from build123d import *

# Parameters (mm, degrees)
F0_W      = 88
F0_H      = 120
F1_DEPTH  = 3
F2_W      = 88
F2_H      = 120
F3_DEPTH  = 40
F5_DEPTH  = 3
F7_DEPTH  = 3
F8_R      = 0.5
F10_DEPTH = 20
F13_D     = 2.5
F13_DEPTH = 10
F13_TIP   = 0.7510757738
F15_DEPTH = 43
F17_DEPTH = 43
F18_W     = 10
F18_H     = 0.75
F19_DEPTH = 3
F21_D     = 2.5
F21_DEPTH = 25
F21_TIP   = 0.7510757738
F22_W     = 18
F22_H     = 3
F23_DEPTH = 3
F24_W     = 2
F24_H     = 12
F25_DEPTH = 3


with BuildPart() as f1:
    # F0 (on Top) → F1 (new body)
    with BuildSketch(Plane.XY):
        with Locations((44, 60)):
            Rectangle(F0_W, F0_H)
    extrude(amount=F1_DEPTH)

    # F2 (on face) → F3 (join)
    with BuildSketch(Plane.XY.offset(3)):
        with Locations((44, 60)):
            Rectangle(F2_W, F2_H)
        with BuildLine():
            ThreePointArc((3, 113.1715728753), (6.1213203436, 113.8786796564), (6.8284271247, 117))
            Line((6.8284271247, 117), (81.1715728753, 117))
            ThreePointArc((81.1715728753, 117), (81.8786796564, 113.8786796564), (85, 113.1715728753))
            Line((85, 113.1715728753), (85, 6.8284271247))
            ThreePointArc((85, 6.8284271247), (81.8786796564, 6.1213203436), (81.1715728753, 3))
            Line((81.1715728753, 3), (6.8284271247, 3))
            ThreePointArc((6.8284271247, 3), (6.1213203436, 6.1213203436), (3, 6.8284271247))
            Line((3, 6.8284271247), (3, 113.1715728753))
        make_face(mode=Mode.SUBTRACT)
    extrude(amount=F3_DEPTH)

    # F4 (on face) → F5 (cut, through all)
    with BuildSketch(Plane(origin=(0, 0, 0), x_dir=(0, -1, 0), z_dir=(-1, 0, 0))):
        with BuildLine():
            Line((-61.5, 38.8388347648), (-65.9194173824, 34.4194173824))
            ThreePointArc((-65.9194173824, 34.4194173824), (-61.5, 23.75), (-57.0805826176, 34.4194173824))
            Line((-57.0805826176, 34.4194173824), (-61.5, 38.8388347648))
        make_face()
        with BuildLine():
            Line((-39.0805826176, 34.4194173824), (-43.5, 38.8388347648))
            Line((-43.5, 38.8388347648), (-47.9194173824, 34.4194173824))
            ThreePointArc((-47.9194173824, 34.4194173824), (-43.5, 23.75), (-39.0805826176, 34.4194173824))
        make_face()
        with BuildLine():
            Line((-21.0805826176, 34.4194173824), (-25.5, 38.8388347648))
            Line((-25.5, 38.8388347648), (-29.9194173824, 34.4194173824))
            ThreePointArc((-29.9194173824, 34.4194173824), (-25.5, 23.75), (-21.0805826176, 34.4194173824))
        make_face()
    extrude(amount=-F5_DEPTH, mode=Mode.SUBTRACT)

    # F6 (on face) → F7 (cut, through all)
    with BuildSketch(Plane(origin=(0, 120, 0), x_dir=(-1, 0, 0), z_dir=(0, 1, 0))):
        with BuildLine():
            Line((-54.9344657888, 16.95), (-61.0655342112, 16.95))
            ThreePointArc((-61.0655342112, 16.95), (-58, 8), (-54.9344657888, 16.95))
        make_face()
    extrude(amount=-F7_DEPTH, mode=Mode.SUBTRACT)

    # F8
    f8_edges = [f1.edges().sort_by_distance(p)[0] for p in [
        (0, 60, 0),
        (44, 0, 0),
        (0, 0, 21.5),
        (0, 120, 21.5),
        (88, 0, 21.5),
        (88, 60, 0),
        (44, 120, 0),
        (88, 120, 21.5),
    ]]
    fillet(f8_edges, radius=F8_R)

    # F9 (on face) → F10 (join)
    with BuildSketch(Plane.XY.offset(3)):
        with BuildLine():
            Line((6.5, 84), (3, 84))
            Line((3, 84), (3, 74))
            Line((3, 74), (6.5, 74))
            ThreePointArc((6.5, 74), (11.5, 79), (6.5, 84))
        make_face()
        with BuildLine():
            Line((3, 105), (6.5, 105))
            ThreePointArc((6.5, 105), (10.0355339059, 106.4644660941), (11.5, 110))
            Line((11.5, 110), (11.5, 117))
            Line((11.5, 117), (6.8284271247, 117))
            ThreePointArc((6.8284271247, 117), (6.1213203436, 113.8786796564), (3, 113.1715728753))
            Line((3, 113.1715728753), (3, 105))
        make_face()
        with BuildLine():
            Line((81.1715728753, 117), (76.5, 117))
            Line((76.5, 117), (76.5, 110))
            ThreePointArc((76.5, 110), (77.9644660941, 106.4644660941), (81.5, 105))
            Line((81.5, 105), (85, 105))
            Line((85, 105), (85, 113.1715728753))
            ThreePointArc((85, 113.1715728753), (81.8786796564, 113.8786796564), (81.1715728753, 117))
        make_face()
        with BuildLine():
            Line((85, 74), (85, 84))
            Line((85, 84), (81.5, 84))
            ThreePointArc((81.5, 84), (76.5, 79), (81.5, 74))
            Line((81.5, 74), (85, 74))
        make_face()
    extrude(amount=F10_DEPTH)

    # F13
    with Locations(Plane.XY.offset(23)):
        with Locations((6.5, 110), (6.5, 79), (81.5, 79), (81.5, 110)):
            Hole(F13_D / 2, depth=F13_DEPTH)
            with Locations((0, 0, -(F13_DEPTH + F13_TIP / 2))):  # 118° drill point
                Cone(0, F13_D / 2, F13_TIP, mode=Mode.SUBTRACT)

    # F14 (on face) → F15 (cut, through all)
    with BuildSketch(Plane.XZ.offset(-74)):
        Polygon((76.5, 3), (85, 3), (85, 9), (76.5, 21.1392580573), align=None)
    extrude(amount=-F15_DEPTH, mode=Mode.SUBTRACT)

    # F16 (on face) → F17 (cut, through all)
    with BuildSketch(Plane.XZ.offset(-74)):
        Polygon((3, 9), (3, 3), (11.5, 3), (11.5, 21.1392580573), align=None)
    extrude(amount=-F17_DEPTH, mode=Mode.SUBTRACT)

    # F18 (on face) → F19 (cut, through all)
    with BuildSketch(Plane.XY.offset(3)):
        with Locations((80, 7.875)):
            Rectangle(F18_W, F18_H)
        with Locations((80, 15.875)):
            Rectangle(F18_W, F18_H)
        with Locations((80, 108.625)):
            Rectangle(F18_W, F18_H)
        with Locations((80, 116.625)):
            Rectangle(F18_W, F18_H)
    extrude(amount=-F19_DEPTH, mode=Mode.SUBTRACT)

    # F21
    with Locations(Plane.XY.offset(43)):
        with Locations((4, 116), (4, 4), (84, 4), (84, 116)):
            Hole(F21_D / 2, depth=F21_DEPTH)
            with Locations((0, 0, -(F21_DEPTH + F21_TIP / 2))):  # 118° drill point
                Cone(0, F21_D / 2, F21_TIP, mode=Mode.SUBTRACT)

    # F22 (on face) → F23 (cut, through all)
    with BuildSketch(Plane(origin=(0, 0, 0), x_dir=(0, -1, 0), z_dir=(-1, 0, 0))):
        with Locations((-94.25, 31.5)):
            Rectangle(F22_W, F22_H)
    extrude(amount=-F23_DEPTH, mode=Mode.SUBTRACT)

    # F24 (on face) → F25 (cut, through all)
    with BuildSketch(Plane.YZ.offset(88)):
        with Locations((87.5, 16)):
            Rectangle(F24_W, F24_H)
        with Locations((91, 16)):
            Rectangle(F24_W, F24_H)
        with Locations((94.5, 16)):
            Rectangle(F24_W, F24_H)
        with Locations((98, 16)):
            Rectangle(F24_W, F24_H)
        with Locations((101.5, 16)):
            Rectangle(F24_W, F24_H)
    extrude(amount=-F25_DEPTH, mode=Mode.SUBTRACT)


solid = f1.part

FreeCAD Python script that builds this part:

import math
import FreeCAD as App
import Part
import Sketcher
from FreeCAD import Vector
Q = App.Units.Quantity


def edges_at(feature, points):
    """Names of the edges that pass closest to the given points."""
    edges = feature.Shape.Edges
    near = lambda p: min(range(len(edges)), key=lambda i: edges[i].distToShape(Part.Vertex(*p))[0])
    return sorted({f"Edge{near(p) + 1}" for p in points})

doc = App.newDocument("Part")
body = doc.addObject("PartDesign::Body", "Body")

# Sketch on XY plane
sketch1 = body.newObject("Sketcher::SketchObject", "Sketch")
sketch1.AttachmentSupport = (doc.getObject("XY_Plane"), [""])
sketch1.MapMode = "FlatFace"
sketch1.addGeometry([
    Part.LineSegment(Vector(0, 120, 0), Vector(0, 0, 0)),
    Part.LineSegment(Vector(0, 0, 0), Vector(88, 0, 0)),
    Part.LineSegment(Vector(88, 0, 0), Vector(88, 120, 0)),
    Part.LineSegment(Vector(88, 120, 0), Vector(0, 120, 0)),
], False)
sketch1.addConstraint([
    Sketcher.Constraint("Coincident", 0, 2, 1, 1),
    Sketcher.Constraint("Coincident", 1, 2, 2, 1),
    Sketcher.Constraint("Coincident", 2, 2, 3, 1),
    Sketcher.Constraint("Coincident", 3, 2, 0, 1),
    Sketcher.Constraint("Vertical", 0),
    Sketcher.Constraint("Horizontal", 1),
    Sketcher.Constraint("Vertical", 2),
    Sketcher.Constraint("Horizontal", 3),
    Sketcher.Constraint("Coincident", 0, 2, -1, 1),
    Sketcher.Constraint("DistanceX", 1, 1, 1, 2, 88.0),
    Sketcher.Constraint("DistanceY", 0, 2, 0, 1, 120.0),
])
pad1 = body.newObject("PartDesign::Pad", "Pad")
pad1.Profile = sketch1
pad1.Length = 3

# Sketch on XY plane
sketch2 = body.newObject("Sketcher::SketchObject", "Sketch001")
sketch2.AttachmentSupport = (doc.getObject("XY_Plane"), [""])
sketch2.MapMode = "FlatFace"
sketch2.AttachmentOffset = App.Placement(Vector(0, 0, 3), App.Rotation())
sketch2.addGeometry([
    Part.LineSegment(Vector(0, 120, 0), Vector(0, 0, 0)),  # 0
    Part.LineSegment(Vector(0, 0, 0), Vector(88, 0, 0)),  # 1
    Part.LineSegment(Vector(88, 0, 0), Vector(88, 120, 0)),  # 2
    Part.LineSegment(Vector(88, 120, 0), Vector(0, 120, 0)),  # 3
    Part.LineSegment(Vector(3, 6.8, 0), Vector(3, 113.2, 0)),  # 4
    Part.ArcOfCircle(Part.Circle(Vector(4, 116, 0), Vector(0, 0, 1), 3), math.radians(-109), math.radians(19)),  # 5
    Part.LineSegment(Vector(6.8, 117, 0), Vector(81.2, 117, 0)),  # 6
    Part.ArcOfCircle(Part.Circle(Vector(84, 116, 0), Vector(0, 0, 1), 3), math.radians(161), math.radians(289)),  # 7
    Part.LineSegment(Vector(85, 113.2, 0), Vector(85, 6.8, 0)),  # 8
    Part.ArcOfCircle(Part.Circle(Vector(84, 4, 0), Vector(0, 0, 1), 3), math.radians(71), math.radians(199)),  # 9
    Part.LineSegment(Vector(81.2, 3, 0), Vector(6.8, 3, 0)),  # 10
    Part.ArcOfCircle(Part.Circle(Vector(4, 4, 0), Vector(0, 0, 1), 3), math.radians(-19), math.radians(109)),  # 11
], False)
sketch2.addConstraint([
    Sketcher.Constraint("Coincident", 0, 2, 1, 1),
    Sketcher.Constraint("Coincident", 1, 2, 2, 1),
    Sketcher.Constraint("Coincident", 2, 2, 3, 1),
    Sketcher.Constraint("Coincident", 3, 2, 0, 1),
    Sketcher.Constraint("Coincident", 4, 2, 5, 1),
    Sketcher.Constraint("Coincident", 5, 2, 6, 1),
    Sketcher.Constraint("Coincident", 6, 2, 7, 1),
    Sketcher.Constraint("Coincident", 7, 2, 8, 1),
    Sketcher.Constraint("Coincident", 8, 2, 9, 1),
    Sketcher.Constraint("Coincident", 9, 2, 10, 1),
    Sketcher.Constraint("Coincident", 10, 2, 11, 1),
    Sketcher.Constraint("Coincident", 11, 2, 4, 1),
    Sketcher.Constraint("Vertical", 0),
    Sketcher.Constraint("Horizontal", 1),
    Sketcher.Constraint("Vertical", 2),
    Sketcher.Constraint("Horizontal", 3),
    Sketcher.Constraint("Vertical", 4),
    Sketcher.Constraint("Horizontal", 6),
    Sketcher.Constraint("Vertical", 8),
    Sketcher.Constraint("Horizontal", 10),
    Sketcher.Constraint("Coincident", 0, 2, -1, 1),
    Sketcher.Constraint("Equal", 5, 7),
    Sketcher.Constraint("Equal", 7, 9),
    Sketcher.Constraint("Equal", 9, 11),
    Sketcher.Constraint("Horizontal", 5, 3, 7, 3),
    Sketcher.Constraint("Horizontal", 9, 3, 11, 3),
    Sketcher.Constraint("Horizontal", 4, 2, 7, 2),
    Sketcher.Constraint("Horizontal", 8, 2, 11, 2),
    Sketcher.Constraint("Vertical", 7, 3, 9, 3),
    Sketcher.Constraint("Vertical", 6, 2, 9, 2),
    Sketcher.Constraint("Radius", 5, 3.0),
    Sketcher.Constraint("DistanceX", 1, 1, 1, 2, 88.0),
    Sketcher.Constraint("DistanceY", 0, 2, 0, 1, 120.0),
    Sketcher.Constraint("DistanceX", -1, 1, 5, 3, 4.0),
    Sketcher.Constraint("DistanceY", -1, 1, 5, 3, 116.0),
    Sketcher.Constraint("DistanceX", -1, 1, 7, 3, 84.0),
    Sketcher.Constraint("DistanceY", -1, 1, 9, 3, 4.0),
    Sketcher.Constraint("DistanceX", -1, 1, 4, 2, 3.0),
    Sketcher.Constraint("DistanceY", -1, 1, 5, 2, 117.0),
])
pad2 = body.newObject("PartDesign::Pad", "Pad001")
pad2.Profile = sketch2
pad2.Length = 40

# Sketch on YZ plane
sketch3 = body.newObject("Sketcher::SketchObject", "Sketch002")
sketch3.AttachmentSupport = (doc.getObject("YZ_Plane"), [""])
sketch3.MapMode = "FlatFace"
sketch3.addGeometry([
    Part.LineSegment(Vector(62, 39, 0), Vector(66, 34, 0)),  # 0
    Part.ArcOfCircle(Part.Circle(Vector(62, 30, 0), Vector(0, 0, 1), 6), math.radians(135), math.radians(405)),  # 1
    Part.LineSegment(Vector(57, 34, 0), Vector(62, 39, 0)),  # 2
    Part.LineSegment(Vector(39, 34, 0), Vector(44, 39, 0)),  # 3
    Part.LineSegment(Vector(44, 39, 0), Vector(48, 34, 0)),  # 4
    Part.ArcOfCircle(Part.Circle(Vector(44, 30, 0), Vector(0, 0, 1), 6), math.radians(135), math.radians(405)),  # 5
    Part.LineSegment(Vector(21, 34, 0), Vector(26, 39, 0)),  # 6
    Part.LineSegment(Vector(26, 39, 0), Vector(30, 34, 0)),  # 7
    Part.ArcOfCircle(Part.Circle(Vector(26, 30, 0), Vector(0, 0, 1), 6), math.radians(135), math.radians(405)),  # 8
], False)
sketch3.addConstraint([
    Sketcher.Constraint("Tangent", 0, 2, 1, 2),
    Sketcher.Constraint("Tangent", 1, 1, 2, 1),
    Sketcher.Constraint("Coincident", 2, 2, 0, 1),
    Sketcher.Constraint("Coincident", 3, 2, 4, 1),
    Sketcher.Constraint("Tangent", 4, 2, 5, 2),
    Sketcher.Constraint("Tangent", 5, 1, 3, 1),
    Sketcher.Constraint("Coincident", 6, 2, 7, 1),
    Sketcher.Constraint("Tangent", 7, 2, 8, 2),
    Sketcher.Constraint("Tangent", 8, 1, 6, 1),
    Sketcher.Constraint("Equal", 1, 5),
    Sketcher.Constraint("Equal", 5, 8),
    Sketcher.Constraint("Perpendicular", 0, 2),
    Sketcher.Constraint("Parallel", 2, 3),
    Sketcher.Constraint("Perpendicular", 3, 4),
    Sketcher.Constraint("Perpendicular", 4, 6),
    Sketcher.Constraint("Perpendicular", 6, 7),
    Sketcher.Constraint("Horizontal", 1, 3, 5, 3),
    Sketcher.Constraint("Horizontal", 5, 3, 8, 3),
    Sketcher.Constraint("Horizontal", 0, 2, 1, 1),
    Sketcher.Constraint("Radius", 1, 6.25),
    Sketcher.Constraint("DistanceY", -1, 1, 1, 3, 30.0),
    Sketcher.Constraint("DistanceX", 5, 3, 1, 3, 18.0),
    Sketcher.Constraint("DistanceX", 8, 3, 5, 3, 18.0),
    Sketcher.Constraint("DistanceX", -1, 1, 1, 3, 61.5),
])
pocket1 = body.newObject("PartDesign::Pocket", "Pocket")
pocket1.Profile = sketch3
pocket1.Length = 3
pocket1.Reversed = True

# Sketch on XZ plane
sketch4 = body.newObject("Sketcher::SketchObject", "Sketch003")
sketch4.AttachmentSupport = (doc.getObject("XZ_Plane"), [""])
sketch4.MapMode = "FlatFace"
sketch4.AttachmentOffset = App.Placement(Vector(0, 0, -120), App.Rotation())
sketch4.addGeometry([
    Part.LineSegment(Vector(55, 17, 0), Vector(61, 17, 0)),
    Part.ArcOfCircle(Part.Circle(Vector(58, 13, 0), Vector(0, 0, 1), 5), math.radians(128), math.radians(412)),
], False)
sketch4.addConstraint([
    Sketcher.Constraint("Coincident", 0, 1, 1, 1),
    Sketcher.Constraint("Coincident", 1, 2, 0, 2),
    Sketcher.Constraint("Horizontal", 0),
    Sketcher.Constraint("Radius", 1, 5.0),
    Sketcher.Constraint("DistanceX", -1, 1, 1, 3, 58.0),
    Sketcher.Constraint("DistanceY", -1, 1, 1, 3, 13.0),
    Sketcher.Constraint("DistanceY", -1, 1, 0, 1, 16.95),
])
pocket2 = body.newObject("PartDesign::Pocket", "Pocket001")
pocket2.Profile = sketch4
pocket2.Length = 3
pocket2.Reversed = True
doc.recompute()

fillet = body.newObject("PartDesign::Fillet", "Fillet")
fillet.Base = (pocket2, edges_at(pocket2, [
    (0, 60, 0),
    (44, 0, 0),
    (0, 0, 21.5),
    (0, 120, 21.5),
    (88, 0, 21.5),
    (88, 60, 0),
    (44, 120, 0),
    (88, 120, 21.5),
]))
fillet.Radius = 0.5

# Sketch on XY plane
sketch5 = body.newObject("Sketcher::SketchObject", "Sketch004")
sketch5.AttachmentSupport = (doc.getObject("XY_Plane"), [""])
sketch5.MapMode = "FlatFace"
sketch5.AttachmentOffset = App.Placement(Vector(0, 0, 3), App.Rotation())
sketch5.addGeometry([
    Part.LineSegment(Vector(6.5, 84, 0), Vector(3, 84, 0)),  # 0
    Part.LineSegment(Vector(3, 84, 0), Vector(3, 74, 0)),  # 1
    Part.LineSegment(Vector(3, 74, 0), Vector(6.5, 74, 0)),  # 2
    Part.ArcOfCircle(Part.Circle(Vector(6.5, 79, 0), Vector(0, 0, 1), 5), math.radians(-90), math.radians(90)),  # 3
    Part.LineSegment(Vector(3, 105, 0), Vector(6.5, 105, 0)),  # 4
    Part.ArcOfCircle(Part.Circle(Vector(6.5, 110, 0), Vector(0, 0, 1), 5), math.radians(-90), math.radians(0)),  # 5
    Part.LineSegment(Vector(11.5, 110, 0), Vector(11.5, 117, 0)),  # 6
    Part.LineSegment(Vector(11.5, 117, 0), Vector(6.8, 117, 0)),  # 7
    Part.ArcOfCircle(Part.Circle(Vector(4, 116, 0), Vector(0, 0, 1), 3), math.radians(-109), math.radians(19)),  # 8
    Part.LineSegment(Vector(3, 113.2, 0), Vector(3, 105, 0)),  # 9
    Part.LineSegment(Vector(81.2, 117, 0), Vector(76.5, 117, 0)),  # 10
    Part.LineSegment(Vector(76.5, 117, 0), Vector(76.5, 110, 0)),  # 11
    Part.ArcOfCircle(Part.Circle(Vector(81.5, 110, 0), Vector(0, 0, 1), 5), math.radians(180), math.radians(270)),  # 12
    Part.LineSegment(Vector(81.5, 105, 0), Vector(85, 105, 0)),  # 13
    Part.LineSegment(Vector(85, 105, 0), Vector(85, 113.2, 0)),  # 14
    Part.ArcOfCircle(Part.Circle(Vector(84, 116, 0), Vector(0, 0, 1), 3), math.radians(161), math.radians(289)),  # 15
    Part.LineSegment(Vector(85, 74, 0), Vector(85, 84, 0)),  # 16
    Part.LineSegment(Vector(85, 84, 0), Vector(81.5, 84, 0)),  # 17
    Part.ArcOfCircle(Part.Circle(Vector(81.5, 79, 0), Vector(0, 0, 1), 5), math.radians(90), math.radians(270)),  # 18
    Part.LineSegment(Vector(81.5, 74, 0), Vector(85, 74, 0)),  # 19
], False)
sketch5.addConstraint([
    Sketcher.Constraint("Coincident", 0, 2, 1, 1),
    Sketcher.Constraint("Coincident", 1, 2, 2, 1),
    Sketcher.Constraint("Tangent", 2, 2, 3, 1),
    Sketcher.Constraint("Tangent", 3, 2, 0, 1),
    Sketcher.Constraint("Tangent", 4, 2, 5, 1),
    Sketcher.Constraint("Tangent", 5, 2, 6, 1),
    Sketcher.Constraint("Coincident", 6, 2, 7, 1),
    Sketcher.Constraint("Coincident", 7, 2, 8, 2),
    Sketcher.Constraint("Coincident", 8, 1, 9, 1),
    Sketcher.Constraint("Coincident", 9, 2, 4, 1),
    Sketcher.Constraint("Coincident", 10, 2, 11, 1),
    Sketcher.Constraint("Tangent", 11, 2, 12, 1),
    Sketcher.Constraint("Tangent", 12, 2, 13, 1),
    Sketcher.Constraint("Coincident", 13, 2, 14, 1),
    Sketcher.Constraint("Coincident", 14, 2, 15, 2),
    Sketcher.Constraint("Coincident", 15, 1, 10, 1),
    Sketcher.Constraint("Coincident", 16, 2, 17, 1),
    Sketcher.Constraint("Tangent", 17, 2, 18, 1),
    Sketcher.Constraint("Tangent", 18, 2, 19, 1),
    Sketcher.Constraint("Coincident", 19, 2, 16, 1),
    Sketcher.Constraint("Horizontal", 0),
    Sketcher.Constraint("Vertical", 1),
    Sketcher.Constraint("Horizontal", 2),
    Sketcher.Constraint("Horizontal", 4),
    Sketcher.Constraint("Vertical", 6),
    Sketcher.Constraint("Horizontal", 7),
    Sketcher.Constraint("Vertical", 9),
    Sketcher.Constraint("Horizontal", 10),
    Sketcher.Constraint("Vertical", 11),
    Sketcher.Constraint("Horizontal", 13),
    Sketcher.Constraint("Vertical", 14),
    Sketcher.Constraint("Vertical", 16),
    Sketcher.Constraint("Horizontal", 17),
    Sketcher.Constraint("Horizontal", 19),
    Sketcher.Constraint("Equal", 3, 5),
    Sketcher.Constraint("Equal", 5, 12),
    Sketcher.Constraint("Equal", 8, 15),
    Sketcher.Constraint("Equal", 12, 18),
    Sketcher.Constraint("Horizontal", 5, 3, 12, 3),
    Sketcher.Constraint("Horizontal", 8, 3, 15, 3),
    Sketcher.Constraint("Horizontal", 3, 3, 18, 3),
    Sketcher.Constraint("Horizontal", 7, 2, 10, 2),
    Sketcher.Constraint("Horizontal", 8, 1, 14, 2),
    Sketcher.Constraint("Vertical", 3, 3, 5, 3),
    Sketcher.Constraint("Vertical", 12, 3, 18, 3),
    Sketcher.Constraint("Vertical", 1, 2, 8, 1),
    Sketcher.Constraint("Vertical", 14, 2, 16, 2),
    Sketcher.Constraint("Equal", 7, 10),
    Sketcher.Constraint("Radius", 3, 5.0),
    Sketcher.Constraint("Radius", 8, 3.0),
    Sketcher.Constraint("DistanceY", 6, 1, 6, 2, 7.0),
    Sketcher.Constraint("DistanceX", 0, 2, 0, 1, 3.5),
    Sketcher.Constraint("DistanceY", -1, 1, 3, 3, 79.0),
    Sketcher.Constraint("DistanceY", -1, 1, 5, 3, 110.0),
    Sketcher.Constraint("DistanceX", -1, 1, 8, 3, 4.0),
    Sketcher.Constraint("DistanceY", -1, 1, 8, 3, 116.0),
    Sketcher.Constraint("DistanceX", -1, 1, 15, 3, 84.0),
    Sketcher.Constraint("DistanceX", -1, 1, 0, 2, 3.0),
])
pad3 = body.newObject("PartDesign::Pad", "Pad002")
pad3.Profile = sketch5
pad3.Length = 20

# Sketch on XY plane
sketch6 = body.newObject("Sketcher::SketchObject", "Sketch005")
sketch6.AttachmentSupport = (doc.getObject("XY_Plane"), [""])
sketch6.MapMode = "FlatFace"
sketch6.AttachmentOffset = App.Placement(Vector(0, 0, 23), App.Rotation())
sketch6.addGeometry([
    Part.Circle(Vector(6.5, 110, 0), Vector(0, 0, 1), 1.2),
    Part.Circle(Vector(6.5, 79, 0), Vector(0, 0, 1), 1.2),
    Part.Circle(Vector(81.5, 79, 0), Vector(0, 0, 1), 1.2),
    Part.Circle(Vector(81.5, 110, 0), Vector(0, 0, 1), 1.2),
], False)
sketch6.addConstraint([
    Sketcher.Constraint("Equal", 0, 1),
    Sketcher.Constraint("Equal", 1, 2),
    Sketcher.Constraint("Equal", 2, 3),
    Sketcher.Constraint("Horizontal", 1, 3, 2, 3),
    Sketcher.Constraint("Horizontal", 0, 3, 3, 3),
    Sketcher.Constraint("Vertical", 0, 3, 1, 3),
    Sketcher.Constraint("Vertical", 2, 3, 3, 3),
    Sketcher.Constraint("Diameter", 0, 2.5),
    Sketcher.Constraint("DistanceY", -1, 1, 0, 3, 110.0),
    Sketcher.Constraint("DistanceY", -1, 1, 1, 3, 79.0),
    Sketcher.Constraint("DistanceX", 1, 3, 2, 3, 75.0),
    Sketcher.Constraint("DistanceX", -1, 1, 0, 3, 6.5),
])
doc.recompute()
hole = body.newObject("PartDesign::Hole", "Hole")
hole.Profile = sketch6
hole.ThreadType = "None"
hole.Diameter = 2.5
hole.DepthType = "Dimension"
hole.Depth = 10
hole.DrillPoint = "Angled"
hole.DrillPointAngle = 118

# Sketch on XZ plane
sketch7 = body.newObject("Sketcher::SketchObject", "Sketch006")
sketch7.AttachmentSupport = (doc.getObject("XZ_Plane"), [""])
sketch7.MapMode = "FlatFace"
sketch7.AttachmentOffset = App.Placement(Vector(0, 0, -74), App.Rotation())
sketch7.addGeometry([
    Part.LineSegment(Vector(76, 3, 0), Vector(85, 3, 0)),
    Part.LineSegment(Vector(85, 3, 0), Vector(85, 9, 0)),
    Part.LineSegment(Vector(85, 9, 0), Vector(76, 21, 0)),
    Part.LineSegment(Vector(76, 21, 0), Vector(76, 3, 0)),
], False)
sketch7.addConstraint([
    Sketcher.Constraint("Coincident", 0, 2, 1, 1),
    Sketcher.Constraint("Coincident", 1, 2, 2, 1),
    Sketcher.Constraint("Coincident", 2, 2, 3, 1),
    Sketcher.Constraint("Coincident", 3, 2, 0, 1),
    Sketcher.Constraint("Horizontal", 0),
    Sketcher.Constraint("Vertical", 1),
    Sketcher.Constraint("Vertical", 3),
    Sketcher.Constraint("DistanceY", 1, 1, 1, 2, 6.0),
    Sketcher.Constraint("Angle", 2, Q("125 deg")),
    Sketcher.Constraint("DistanceX", 0, 1, 0, 2, 8.5),
    Sketcher.Constraint("DistanceX", -1, 1, 0, 2, 85.0),
    Sketcher.Constraint("DistanceY", -1, 1, 0, 2, 3.0),
])
pocket3 = body.newObject("PartDesign::Pocket", "Pocket002")
pocket3.Profile = sketch7
pocket3.Length = 43

# Sketch on XZ plane
sketch8 = body.newObject("Sketcher::SketchObject", "Sketch007")
sketch8.AttachmentSupport = (doc.getObject("XZ_Plane"), [""])
sketch8.MapMode = "FlatFace"
sketch8.AttachmentOffset = App.Placement(Vector(0, 0, -74), App.Rotation())
sketch8.addGeometry([
    Part.LineSegment(Vector(3, 9, 0), Vector(3, 3, 0)),
    Part.LineSegment(Vector(3, 3, 0), Vector(12, 3, 0)),
    Part.LineSegment(Vector(12, 3, 0), Vector(12, 21, 0)),
    Part.LineSegment(Vector(12, 21, 0), Vector(3, 9, 0)),
], False)
sketch8.addConstraint([
    Sketcher.Constraint("Coincident", 0, 2, 1, 1),
    Sketcher.Constraint("Coincident", 1, 2, 2, 1),
    Sketcher.Constraint("Coincident", 2, 2, 3, 1),
    Sketcher.Constraint("Coincident", 3, 2, 0, 1),
    Sketcher.Constraint("Vertical", 0),
    Sketcher.Constraint("Horizontal", 1),
    Sketcher.Constraint("Vertical", 2),
    Sketcher.Constraint("DistanceY", 0, 2, 0, 1, 6.0),
    Sketcher.Constraint("Angle", 3, Q("-125 deg")),
    Sketcher.Constraint("DistanceX", 1, 1, 1, 2, 8.5),
    Sketcher.Constraint("DistanceX", -1, 1, 0, 2, 3.0),
    Sketcher.Constraint("DistanceY", -1, 1, 0, 2, 3.0),
])
pocket4 = body.newObject("PartDesign::Pocket", "Pocket003")
pocket4.Profile = sketch8
pocket4.Length = 43

# Sketch on XY plane
sketch9 = body.newObject("Sketcher::SketchObject", "Sketch008")
sketch9.AttachmentSupport = (doc.getObject("XY_Plane"), [""])
sketch9.MapMode = "FlatFace"
sketch9.AttachmentOffset = App.Placement(Vector(0, 0, 3), App.Rotation())
sketch9.addGeometry([
    Part.LineSegment(Vector(75, 8.2, 0), Vector(75, 7.5, 0)),  # 0
    Part.LineSegment(Vector(75, 7.5, 0), Vector(85, 7.5, 0)),  # 1
    Part.LineSegment(Vector(85, 7.5, 0), Vector(85, 8.2, 0)),  # 2
    Part.LineSegment(Vector(85, 8.2, 0), Vector(75, 8.2, 0)),  # 3
    Part.LineSegment(Vector(75, 16.2, 0), Vector(75, 15.5, 0)),  # 4
    Part.LineSegment(Vector(75, 15.5, 0), Vector(85, 15.5, 0)),  # 5
    Part.LineSegment(Vector(85, 15.5, 0), Vector(85, 16.2, 0)),  # 6
    Part.LineSegment(Vector(85, 16.2, 0), Vector(75, 16.2, 0)),  # 7
    Part.LineSegment(Vector(75, 109, 0), Vector(75, 108.2, 0)),  # 8
    Part.LineSegment(Vector(75, 108.2, 0), Vector(85, 108.2, 0)),  # 9
    Part.LineSegment(Vector(85, 108.2, 0), Vector(85, 109, 0)),  # 10
    Part.LineSegment(Vector(85, 109, 0), Vector(75, 109, 0)),  # 11
    Part.LineSegment(Vector(75, 117, 0), Vector(75, 116.2, 0)),  # 12
    Part.LineSegment(Vector(75, 116.2, 0), Vector(85, 116.2, 0)),  # 13
    Part.LineSegment(Vector(85, 116.2, 0), Vector(85, 117, 0)),  # 14
    Part.LineSegment(Vector(85, 117, 0), Vector(75, 117, 0)),  # 15
], False)
sketch9.addConstraint([
    Sketcher.Constraint("Coincident", 0, 2, 1, 1),
    Sketcher.Constraint("Coincident", 1, 2, 2, 1),
    Sketcher.Constraint("Coincident", 2, 2, 3, 1),
    Sketcher.Constraint("Coincident", 3, 2, 0, 1),
    Sketcher.Constraint("Coincident", 4, 2, 5, 1),
    Sketcher.Constraint("Coincident", 5, 2, 6, 1),
    Sketcher.Constraint("Coincident", 6, 2, 7, 1),
    Sketcher.Constraint("Coincident", 7, 2, 4, 1),
    Sketcher.Constraint("Coincident", 8, 2, 9, 1),
    Sketcher.Constraint("Coincident", 9, 2, 10, 1),
    Sketcher.Constraint("Coincident", 10, 2, 11, 1),
    Sketcher.Constraint("Coincident", 11, 2, 8, 1),
    Sketcher.Constraint("Coincident", 12, 2, 13, 1),
    Sketcher.Constraint("Coincident", 13, 2, 14, 1),
    Sketcher.Constraint("Coincident", 14, 2, 15, 1),
    Sketcher.Constraint("Coincident", 15, 2, 12, 1),
    Sketcher.Constraint("Vertical", 0),
    Sketcher.Constraint("Horizontal", 1),
    Sketcher.Constraint("Vertical", 2),
    Sketcher.Constraint("Horizontal", 3),
    Sketcher.Constraint("Vertical", 4),
    Sketcher.Constraint("Horizontal", 5),
    Sketcher.Constraint("Vertical", 6),
    Sketcher.Constraint("Horizontal", 7),
    Sketcher.Constraint("Vertical", 8),
    Sketcher.Constraint("Horizontal", 9),
    Sketcher.Constraint("Vertical", 10),
    Sketcher.Constraint("Horizontal", 11),
    Sketcher.Constraint("Vertical", 12),
    Sketcher.Constraint("Horizontal", 13),
    Sketcher.Constraint("Vertical", 14),
    Sketcher.Constraint("Horizontal", 15),
    Sketcher.Constraint("Vertical", 3, 2, 4, 2),
    Sketcher.Constraint("Vertical", 2, 2, 5, 2),
    Sketcher.Constraint("Vertical", 7, 2, 8, 2),
    Sketcher.Constraint("Vertical", 6, 2, 9, 2),
    Sketcher.Constraint("Vertical", 11, 2, 12, 2),
    Sketcher.Constraint("Vertical", 10, 2, 13, 2),
    Sketcher.Constraint("Equal", 2, 4),
    Sketcher.Constraint("Equal", 6, 8),
    Sketcher.Constraint("Equal", 10, 12),
    Sketcher.Constraint("DistanceX", 1, 1, 1, 2, 10.0),
    Sketcher.Constraint("DistanceX", -1, 1, 0, 2, 75.0),
    Sketcher.Constraint("DistanceY", -1, 1, 10, 2, 109.0),
    Sketcher.Constraint("DistanceY", -1, 1, 14, 2, 117.0),
    Sketcher.Constraint("DistanceY", 0, 2, 4, 2, 8.0),
    Sketcher.Constraint("DistanceY", 7, 2, 8, 2, 92.0),
    Sketcher.Constraint("DistanceY", 0, 2, 0, 1, 0.75),
])
pocket5 = body.newObject("PartDesign::Pocket", "Pocket004")
pocket5.Profile = sketch9
pocket5.Type = "ThroughAll"

# Sketch on XY plane
sketch10 = body.newObject("Sketcher::SketchObject", "Sketch009")
sketch10.AttachmentSupport = (doc.getObject("XY_Plane"), [""])
sketch10.MapMode = "FlatFace"
sketch10.AttachmentOffset = App.Placement(Vector(0, 0, 43), App.Rotation())
sketch10.addGeometry([
    Part.Circle(Vector(4, 116, 0), Vector(0, 0, 1), 1.2),
    Part.Circle(Vector(4, 4, 0), Vector(0, 0, 1), 1.2),
    Part.Circle(Vector(84, 4, 0), Vector(0, 0, 1), 1.2),
    Part.Circle(Vector(84, 116, 0), Vector(0, 0, 1), 1.2),
], False)
sketch10.addConstraint([
    Sketcher.Constraint("Equal", 0, 1),
    Sketcher.Constraint("Equal", 1, 2),
    Sketcher.Constraint("Equal", 2, 3),
    Sketcher.Constraint("Horizontal", 1, 3, 2, 3),
    Sketcher.Constraint("Horizontal", 0, 3, 3, 3),
    Sketcher.Constraint("Vertical", 0, 3, 1, 3),
    Sketcher.Constraint("Vertical", 2, 3, 3, 3),
    Sketcher.Constraint("Diameter", 0, 2.5),
    Sketcher.Constraint("DistanceX", -1, 1, 0, 3, 4.0),
    Sketcher.Constraint("DistanceY", -1, 1, 0, 3, 116.0),
    Sketcher.Constraint("DistanceY", -1, 1, 1, 3, 4.0),
    Sketcher.Constraint("DistanceX", -1, 1, 2, 3, 84.0),
])
doc.recompute()
hole2 = body.newObject("PartDesign::Hole", "Hole001")
hole2.Profile = sketch10
hole2.ThreadType = "None"
hole2.Diameter = 2.5
hole2.DepthType = "Dimension"
hole2.Depth = 25
hole2.DrillPoint = "Angled"
hole2.DrillPointAngle = 118

# Sketch on YZ plane
sketch11 = body.newObject("Sketcher::SketchObject", "Sketch010")
sketch11.AttachmentSupport = (doc.getObject("YZ_Plane"), [""])
sketch11.MapMode = "FlatFace"
sketch11.addGeometry([
    Part.LineSegment(Vector(103.2, 33, 0), Vector(103.2, 30, 0)),
    Part.LineSegment(Vector(103.2, 30, 0), Vector(85.2, 30, 0)),
    Part.LineSegment(Vector(85.2, 30, 0), Vector(85.2, 33, 0)),
    Part.LineSegment(Vector(85.2, 33, 0), Vector(103.2, 33, 0)),
], False)
sketch11.addConstraint([
    Sketcher.Constraint("Coincident", 0, 2, 1, 1),
    Sketcher.Constraint("Coincident", 1, 2, 2, 1),
    Sketcher.Constraint("Coincident", 2, 2, 3, 1),
    Sketcher.Constraint("Coincident", 3, 2, 0, 1),
    Sketcher.Constraint("Vertical", 0),
    Sketcher.Constraint("Horizontal", 1),
    Sketcher.Constraint("Vertical", 2),
    Sketcher.Constraint("Horizontal", 3),
    Sketcher.Constraint("DistanceX", 1, 2, 1, 1, 18.0),
    Sketcher.Constraint("DistanceY", 0, 2, 0, 1, 3.0),
    Sketcher.Constraint("DistanceY", -1, 1, 0, 2, 30.0),
    Sketcher.Constraint("DistanceX", -1, 1, 0, 2, 103.25),
])
pocket6 = body.newObject("PartDesign::Pocket", "Pocket005")
pocket6.Profile = sketch11
pocket6.Length = 3
pocket6.Reversed = True

# Sketch on YZ plane
sketch12 = body.newObject("Sketcher::SketchObject", "Sketch011")
sketch12.AttachmentSupport = (doc.getObject("YZ_Plane"), [""])
sketch12.MapMode = "FlatFace"
sketch12.AttachmentOffset = App.Placement(Vector(0, 0, 88), App.Rotation())
sketch12.addGeometry([
    Part.LineSegment(Vector(86.5, 22, 0), Vector(86.5, 10, 0)),  # 0
    Part.LineSegment(Vector(86.5, 10, 0), Vector(88.5, 10, 0)),  # 1
    Part.LineSegment(Vector(88.5, 10, 0), Vector(88.5, 22, 0)),  # 2
    Part.LineSegment(Vector(88.5, 22, 0), Vector(86.5, 22, 0)),  # 3
    Part.LineSegment(Vector(90, 22, 0), Vector(90, 10, 0)),  # 4
    Part.LineSegment(Vector(90, 10, 0), Vector(92, 10, 0)),  # 5
    Part.LineSegment(Vector(92, 10, 0), Vector(92, 22, 0)),  # 6
    Part.LineSegment(Vector(92, 22, 0), Vector(90, 22, 0)),  # 7
    Part.LineSegment(Vector(93.5, 22, 0), Vector(93.5, 10, 0)),  # 8
    Part.LineSegment(Vector(93.5, 10, 0), Vector(95.5, 10, 0)),  # 9
    Part.LineSegment(Vector(95.5, 10, 0), Vector(95.5, 22, 0)),  # 10
    Part.LineSegment(Vector(95.5, 22, 0), Vector(93.5, 22, 0)),  # 11
    Part.LineSegment(Vector(97, 22, 0), Vector(97, 10, 0)),  # 12
    Part.LineSegment(Vector(97, 10, 0), Vector(99, 10, 0)),  # 13
    Part.LineSegment(Vector(99, 10, 0), Vector(99, 22, 0)),  # 14
    Part.LineSegment(Vector(99, 22, 0), Vector(97, 22, 0)),  # 15
    Part.LineSegment(Vector(100.5, 22, 0), Vector(100.5, 10, 0)),  # 16
    Part.LineSegment(Vector(100.5, 10, 0), Vector(102.5, 10, 0)),  # 17
    Part.LineSegment(Vector(102.5, 10, 0), Vector(102.5, 22, 0)),  # 18
    Part.LineSegment(Vector(102.5, 22, 0), Vector(100.5, 22, 0)),  # 19
], False)
sketch12.addConstraint([
    Sketcher.Constraint("Coincident", 0, 2, 1, 1),
    Sketcher.Constraint("Coincident", 1, 2, 2, 1),
    Sketcher.Constraint("Coincident", 2, 2, 3, 1),
    Sketcher.Constraint("Coincident", 3, 2, 0, 1),
    Sketcher.Constraint("Coincident", 4, 2, 5, 1),
    Sketcher.Constraint("Coincident", 5, 2, 6, 1),
    Sketcher.Constraint("Coincident", 6, 2, 7, 1),
    Sketcher.Constraint("Coincident", 7, 2, 4, 1),
    Sketcher.Constraint("Coincident", 8, 2, 9, 1),
    Sketcher.Constraint("Coincident", 9, 2, 10, 1),
    Sketcher.Constraint("Coincident", 10, 2, 11, 1),
    Sketcher.Constraint("Coincident", 11, 2, 8, 1),
    Sketcher.Constraint("Coincident", 12, 2, 13, 1),
    Sketcher.Constraint("Coincident", 13, 2, 14, 1),
    Sketcher.Constraint("Coincident", 14, 2, 15, 1),
    Sketcher.Constraint("Coincident", 15, 2, 12, 1),
    Sketcher.Constraint("Coincident", 16, 2, 17, 1),
    Sketcher.Constraint("Coincident", 17, 2, 18, 1),
    Sketcher.Constraint("Coincident", 18, 2, 19, 1),
    Sketcher.Constraint("Coincident", 19, 2, 16, 1),
    Sketcher.Constraint("Vertical", 0),
    Sketcher.Constraint("Horizontal", 1),
    Sketcher.Constraint("Vertical", 2),
    Sketcher.Constraint("Horizontal", 3),
    Sketcher.Constraint("Vertical", 4),
    Sketcher.Constraint("Horizontal", 5),
    Sketcher.Constraint("Vertical", 6),
    Sketcher.Constraint("Horizontal", 7),
    Sketcher.Constraint("Vertical", 8),
    Sketcher.Constraint("Horizontal", 9),
    Sketcher.Constraint("Vertical", 10),
    Sketcher.Constraint("Horizontal", 11),
    Sketcher.Constraint("Vertical", 12),
    Sketcher.Constraint("Horizontal", 13),
    Sketcher.Constraint("Vertical", 14),
    Sketcher.Constraint("Horizontal", 15),
    Sketcher.Constraint("Vertical", 16),
    Sketcher.Constraint("Horizontal", 17),
    Sketcher.Constraint("Vertical", 18),
    Sketcher.Constraint("Horizontal", 19),
    Sketcher.Constraint("Horizontal", 1, 2, 4, 2),
    Sketcher.Constraint("Horizontal", 3, 2, 6, 2),
    Sketcher.Constraint("Horizontal", 5, 2, 8, 2),
    Sketcher.Constraint("Horizontal", 7, 2, 10, 2),
    Sketcher.Constraint("Horizontal", 9, 2, 12, 2),
    Sketcher.Constraint("Horizontal", 11, 2, 14, 2),
    Sketcher.Constraint("Horizontal", 13, 2, 16, 2),
    Sketcher.Constraint("Horizontal", 15, 2, 18, 2),
    Sketcher.Constraint("Equal", 3, 5),
    Sketcher.Constraint("Equal", 7, 9),
    Sketcher.Constraint("Equal", 11, 13),
    Sketcher.Constraint("Equal", 15, 17),
    Sketcher.Constraint("DistanceX", 1, 1, 1, 2, 2.0),
    Sketcher.Constraint("DistanceY", 0, 2, 0, 1, 12.0),
    Sketcher.Constraint("DistanceY", -1, 1, 0, 2, 10.0),
    Sketcher.Constraint("DistanceX", -1, 1, 4, 2, 90.0),
    Sketcher.Constraint("DistanceX", -1, 1, 12, 2, 97.0),
    Sketcher.Constraint("DistanceX", 1, 2, 8, 2, 5.0),
    Sketcher.Constraint("DistanceX", 9, 2, 16, 2, 5.0),
    Sketcher.Constraint("DistanceX", -1, 1, 0, 2, 86.5),
])
pocket7 = body.newObject("PartDesign::Pocket", "Pocket006")
pocket7.Profile = sketch12
pocket7.Length = 3

doc.recompute()
